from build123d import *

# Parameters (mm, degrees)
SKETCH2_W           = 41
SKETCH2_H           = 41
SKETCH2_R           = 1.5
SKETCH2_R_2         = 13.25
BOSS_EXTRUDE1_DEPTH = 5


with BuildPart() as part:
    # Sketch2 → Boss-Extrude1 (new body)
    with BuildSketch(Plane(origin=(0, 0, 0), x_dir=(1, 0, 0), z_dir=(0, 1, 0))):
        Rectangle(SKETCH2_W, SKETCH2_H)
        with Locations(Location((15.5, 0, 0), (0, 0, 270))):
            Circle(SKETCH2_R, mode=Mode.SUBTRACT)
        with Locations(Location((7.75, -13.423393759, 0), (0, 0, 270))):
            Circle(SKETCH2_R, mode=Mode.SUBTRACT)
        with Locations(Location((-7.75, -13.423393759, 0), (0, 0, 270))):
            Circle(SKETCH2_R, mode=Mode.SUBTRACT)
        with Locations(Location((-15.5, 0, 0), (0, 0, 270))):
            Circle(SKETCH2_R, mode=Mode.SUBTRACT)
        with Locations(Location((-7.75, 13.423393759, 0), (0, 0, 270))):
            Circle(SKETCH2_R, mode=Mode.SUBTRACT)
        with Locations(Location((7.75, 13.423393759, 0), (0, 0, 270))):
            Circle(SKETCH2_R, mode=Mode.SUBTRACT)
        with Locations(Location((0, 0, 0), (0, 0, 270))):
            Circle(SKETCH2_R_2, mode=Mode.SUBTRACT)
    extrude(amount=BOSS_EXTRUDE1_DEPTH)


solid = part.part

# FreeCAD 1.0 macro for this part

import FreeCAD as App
import Part
import Sketcher
from FreeCAD import Vector


def add_polygon(sketch, points):
    """Adds a closed chain of lines whose ends are joined by coincident constraints."""
    first, n = sketch.GeometryCount, len(points)
    for a, b in zip(points, points[1:] + points[:1]):
        sketch.addGeometry(Part.LineSegment(App.Vector(*a, 0), App.Vector(*b, 0)), False)
    for i in range(n):
        sketch.addConstraint(Sketcher.Constraint("Coincident", first + i, 2, first + (i + 1) % n, 1))

doc = App.newDocument("Part")
body = doc.addObject("PartDesign::Body", "Body")

# Sketch on XZ plane
sketch1 = body.newObject("Sketcher::SketchObject", "Sketch")
sketch1.AttachmentSupport = (doc.getObject("XZ_Plane"), [""])
sketch1.MapMode = "FlatFace"
add_polygon(sketch1, [(-20.5, -20.5), (-20.5, 20.5), (20.5, 20.5), (20.5, -20.5)])  # lines 0-3
sketch1.addGeometry(Part.Circle(Vector(-7.8, 13.4, 0), Vector(0, 0, 1), 1.5), False)  # 4
sketch1.addGeometry(Part.Circle(Vector(7.8, 13.4, 0), Vector(0, 0, 1), 1.5), False)  # 5
sketch1.addGeometry(Part.Circle(Vector(-15.5, 0, 0), Vector(0, 0, 1), 1.5), False)  # 6
sketch1.addGeometry(Part.Circle(Vector(-7.8, -13.4, 0), Vector(0, 0, 1), 1.5), False)  # 7
sketch1.addGeometry(Part.Circle(Vector(0, 0, 0), Vector(0, 0, 1), 13.2), False)  # 8
sketch1.addGeometry(Part.Circle(Vector(15.5, 0, 0), Vector(0, 0, 1), 1.5), False)  # 9
sketch1.addGeometry(Part.Circle(Vector(7.8, -13.4, 0), Vector(0, 0, 1), 1.5), False)  # 10
sketch1.addConstraint(Sketcher.Constraint("Vertical", 0))
sketch1.addConstraint(Sketcher.Constraint("Horizontal", 1))
sketch1.addConstraint(Sketcher.Constraint("Vertical", 2))
sketch1.addConstraint(Sketcher.Constraint("Horizontal", 3))
sketch1.addConstraint(Sketcher.Constraint("Coincident", 8, 3, -1, 1))
sketch1.addConstraint(Sketcher.Constraint("Equal", 4, 5))
sketch1.addConstraint(Sketcher.Constraint("Equal", 5, 6))
sketch1.addConstraint(Sketcher.Constraint("Equal", 6, 7))
sketch1.addConstraint(Sketcher.Constraint("Equal", 7, 9))
sketch1.addConstraint(Sketcher.Constraint("Equal", 9, 10))
sketch1.addConstraint(Sketcher.Constraint("Symmetric", 5, 3, 7, 3, -1, 1))
sketch1.addConstraint(Sketcher.Constraint("Symmetric", 6, 3, 9, 3, -1, 1))
sketch1.addConstraint(Sketcher.Constraint("Symmetric", 4, 3, 10, 3, -1, 1))
sketch1.addConstraint(Sketcher.Constraint("Symmetric", 0, 2, 2, 2, -1, 1))
sketch1.addConstraint(Sketcher.Constraint("Symmetric", 4, 3, 5, 3, -2))
sketch1.addConstraint(Sketcher.Constraint("PointOnObject", 6, 3, -1))
sketch1.addConstraint(Sketcher.Constraint("Equal", 3, 0))
sketch1.addConstraint(Sketcher.Constraint("Diameter", 4, 3.0))
sketch1.addConstraint(Sketcher.Constraint("Diameter", 8, 26.5))
sketch1.addConstraint(Sketcher.Constraint("DistanceX", 1, 1, 1, 2, 41.0))
sketch1.addConstraint(Sketcher.Constraint("DistanceX", 6, 3, 9, 3, 31.0))
sketch1.addConstraint(Sketcher.Constraint("DistanceX", 4, 3, 5, 3, 15.5))
sketch1.addConstraint(Sketcher.Constraint("DistanceY", -1, 1, 4, 3, 13.423394))
pad1 = body.newObject("PartDesign::Pad", "Pad")
pad1.Profile = sketch1
pad1.Length = 5
pad1.Reversed = True

doc.recompute()
